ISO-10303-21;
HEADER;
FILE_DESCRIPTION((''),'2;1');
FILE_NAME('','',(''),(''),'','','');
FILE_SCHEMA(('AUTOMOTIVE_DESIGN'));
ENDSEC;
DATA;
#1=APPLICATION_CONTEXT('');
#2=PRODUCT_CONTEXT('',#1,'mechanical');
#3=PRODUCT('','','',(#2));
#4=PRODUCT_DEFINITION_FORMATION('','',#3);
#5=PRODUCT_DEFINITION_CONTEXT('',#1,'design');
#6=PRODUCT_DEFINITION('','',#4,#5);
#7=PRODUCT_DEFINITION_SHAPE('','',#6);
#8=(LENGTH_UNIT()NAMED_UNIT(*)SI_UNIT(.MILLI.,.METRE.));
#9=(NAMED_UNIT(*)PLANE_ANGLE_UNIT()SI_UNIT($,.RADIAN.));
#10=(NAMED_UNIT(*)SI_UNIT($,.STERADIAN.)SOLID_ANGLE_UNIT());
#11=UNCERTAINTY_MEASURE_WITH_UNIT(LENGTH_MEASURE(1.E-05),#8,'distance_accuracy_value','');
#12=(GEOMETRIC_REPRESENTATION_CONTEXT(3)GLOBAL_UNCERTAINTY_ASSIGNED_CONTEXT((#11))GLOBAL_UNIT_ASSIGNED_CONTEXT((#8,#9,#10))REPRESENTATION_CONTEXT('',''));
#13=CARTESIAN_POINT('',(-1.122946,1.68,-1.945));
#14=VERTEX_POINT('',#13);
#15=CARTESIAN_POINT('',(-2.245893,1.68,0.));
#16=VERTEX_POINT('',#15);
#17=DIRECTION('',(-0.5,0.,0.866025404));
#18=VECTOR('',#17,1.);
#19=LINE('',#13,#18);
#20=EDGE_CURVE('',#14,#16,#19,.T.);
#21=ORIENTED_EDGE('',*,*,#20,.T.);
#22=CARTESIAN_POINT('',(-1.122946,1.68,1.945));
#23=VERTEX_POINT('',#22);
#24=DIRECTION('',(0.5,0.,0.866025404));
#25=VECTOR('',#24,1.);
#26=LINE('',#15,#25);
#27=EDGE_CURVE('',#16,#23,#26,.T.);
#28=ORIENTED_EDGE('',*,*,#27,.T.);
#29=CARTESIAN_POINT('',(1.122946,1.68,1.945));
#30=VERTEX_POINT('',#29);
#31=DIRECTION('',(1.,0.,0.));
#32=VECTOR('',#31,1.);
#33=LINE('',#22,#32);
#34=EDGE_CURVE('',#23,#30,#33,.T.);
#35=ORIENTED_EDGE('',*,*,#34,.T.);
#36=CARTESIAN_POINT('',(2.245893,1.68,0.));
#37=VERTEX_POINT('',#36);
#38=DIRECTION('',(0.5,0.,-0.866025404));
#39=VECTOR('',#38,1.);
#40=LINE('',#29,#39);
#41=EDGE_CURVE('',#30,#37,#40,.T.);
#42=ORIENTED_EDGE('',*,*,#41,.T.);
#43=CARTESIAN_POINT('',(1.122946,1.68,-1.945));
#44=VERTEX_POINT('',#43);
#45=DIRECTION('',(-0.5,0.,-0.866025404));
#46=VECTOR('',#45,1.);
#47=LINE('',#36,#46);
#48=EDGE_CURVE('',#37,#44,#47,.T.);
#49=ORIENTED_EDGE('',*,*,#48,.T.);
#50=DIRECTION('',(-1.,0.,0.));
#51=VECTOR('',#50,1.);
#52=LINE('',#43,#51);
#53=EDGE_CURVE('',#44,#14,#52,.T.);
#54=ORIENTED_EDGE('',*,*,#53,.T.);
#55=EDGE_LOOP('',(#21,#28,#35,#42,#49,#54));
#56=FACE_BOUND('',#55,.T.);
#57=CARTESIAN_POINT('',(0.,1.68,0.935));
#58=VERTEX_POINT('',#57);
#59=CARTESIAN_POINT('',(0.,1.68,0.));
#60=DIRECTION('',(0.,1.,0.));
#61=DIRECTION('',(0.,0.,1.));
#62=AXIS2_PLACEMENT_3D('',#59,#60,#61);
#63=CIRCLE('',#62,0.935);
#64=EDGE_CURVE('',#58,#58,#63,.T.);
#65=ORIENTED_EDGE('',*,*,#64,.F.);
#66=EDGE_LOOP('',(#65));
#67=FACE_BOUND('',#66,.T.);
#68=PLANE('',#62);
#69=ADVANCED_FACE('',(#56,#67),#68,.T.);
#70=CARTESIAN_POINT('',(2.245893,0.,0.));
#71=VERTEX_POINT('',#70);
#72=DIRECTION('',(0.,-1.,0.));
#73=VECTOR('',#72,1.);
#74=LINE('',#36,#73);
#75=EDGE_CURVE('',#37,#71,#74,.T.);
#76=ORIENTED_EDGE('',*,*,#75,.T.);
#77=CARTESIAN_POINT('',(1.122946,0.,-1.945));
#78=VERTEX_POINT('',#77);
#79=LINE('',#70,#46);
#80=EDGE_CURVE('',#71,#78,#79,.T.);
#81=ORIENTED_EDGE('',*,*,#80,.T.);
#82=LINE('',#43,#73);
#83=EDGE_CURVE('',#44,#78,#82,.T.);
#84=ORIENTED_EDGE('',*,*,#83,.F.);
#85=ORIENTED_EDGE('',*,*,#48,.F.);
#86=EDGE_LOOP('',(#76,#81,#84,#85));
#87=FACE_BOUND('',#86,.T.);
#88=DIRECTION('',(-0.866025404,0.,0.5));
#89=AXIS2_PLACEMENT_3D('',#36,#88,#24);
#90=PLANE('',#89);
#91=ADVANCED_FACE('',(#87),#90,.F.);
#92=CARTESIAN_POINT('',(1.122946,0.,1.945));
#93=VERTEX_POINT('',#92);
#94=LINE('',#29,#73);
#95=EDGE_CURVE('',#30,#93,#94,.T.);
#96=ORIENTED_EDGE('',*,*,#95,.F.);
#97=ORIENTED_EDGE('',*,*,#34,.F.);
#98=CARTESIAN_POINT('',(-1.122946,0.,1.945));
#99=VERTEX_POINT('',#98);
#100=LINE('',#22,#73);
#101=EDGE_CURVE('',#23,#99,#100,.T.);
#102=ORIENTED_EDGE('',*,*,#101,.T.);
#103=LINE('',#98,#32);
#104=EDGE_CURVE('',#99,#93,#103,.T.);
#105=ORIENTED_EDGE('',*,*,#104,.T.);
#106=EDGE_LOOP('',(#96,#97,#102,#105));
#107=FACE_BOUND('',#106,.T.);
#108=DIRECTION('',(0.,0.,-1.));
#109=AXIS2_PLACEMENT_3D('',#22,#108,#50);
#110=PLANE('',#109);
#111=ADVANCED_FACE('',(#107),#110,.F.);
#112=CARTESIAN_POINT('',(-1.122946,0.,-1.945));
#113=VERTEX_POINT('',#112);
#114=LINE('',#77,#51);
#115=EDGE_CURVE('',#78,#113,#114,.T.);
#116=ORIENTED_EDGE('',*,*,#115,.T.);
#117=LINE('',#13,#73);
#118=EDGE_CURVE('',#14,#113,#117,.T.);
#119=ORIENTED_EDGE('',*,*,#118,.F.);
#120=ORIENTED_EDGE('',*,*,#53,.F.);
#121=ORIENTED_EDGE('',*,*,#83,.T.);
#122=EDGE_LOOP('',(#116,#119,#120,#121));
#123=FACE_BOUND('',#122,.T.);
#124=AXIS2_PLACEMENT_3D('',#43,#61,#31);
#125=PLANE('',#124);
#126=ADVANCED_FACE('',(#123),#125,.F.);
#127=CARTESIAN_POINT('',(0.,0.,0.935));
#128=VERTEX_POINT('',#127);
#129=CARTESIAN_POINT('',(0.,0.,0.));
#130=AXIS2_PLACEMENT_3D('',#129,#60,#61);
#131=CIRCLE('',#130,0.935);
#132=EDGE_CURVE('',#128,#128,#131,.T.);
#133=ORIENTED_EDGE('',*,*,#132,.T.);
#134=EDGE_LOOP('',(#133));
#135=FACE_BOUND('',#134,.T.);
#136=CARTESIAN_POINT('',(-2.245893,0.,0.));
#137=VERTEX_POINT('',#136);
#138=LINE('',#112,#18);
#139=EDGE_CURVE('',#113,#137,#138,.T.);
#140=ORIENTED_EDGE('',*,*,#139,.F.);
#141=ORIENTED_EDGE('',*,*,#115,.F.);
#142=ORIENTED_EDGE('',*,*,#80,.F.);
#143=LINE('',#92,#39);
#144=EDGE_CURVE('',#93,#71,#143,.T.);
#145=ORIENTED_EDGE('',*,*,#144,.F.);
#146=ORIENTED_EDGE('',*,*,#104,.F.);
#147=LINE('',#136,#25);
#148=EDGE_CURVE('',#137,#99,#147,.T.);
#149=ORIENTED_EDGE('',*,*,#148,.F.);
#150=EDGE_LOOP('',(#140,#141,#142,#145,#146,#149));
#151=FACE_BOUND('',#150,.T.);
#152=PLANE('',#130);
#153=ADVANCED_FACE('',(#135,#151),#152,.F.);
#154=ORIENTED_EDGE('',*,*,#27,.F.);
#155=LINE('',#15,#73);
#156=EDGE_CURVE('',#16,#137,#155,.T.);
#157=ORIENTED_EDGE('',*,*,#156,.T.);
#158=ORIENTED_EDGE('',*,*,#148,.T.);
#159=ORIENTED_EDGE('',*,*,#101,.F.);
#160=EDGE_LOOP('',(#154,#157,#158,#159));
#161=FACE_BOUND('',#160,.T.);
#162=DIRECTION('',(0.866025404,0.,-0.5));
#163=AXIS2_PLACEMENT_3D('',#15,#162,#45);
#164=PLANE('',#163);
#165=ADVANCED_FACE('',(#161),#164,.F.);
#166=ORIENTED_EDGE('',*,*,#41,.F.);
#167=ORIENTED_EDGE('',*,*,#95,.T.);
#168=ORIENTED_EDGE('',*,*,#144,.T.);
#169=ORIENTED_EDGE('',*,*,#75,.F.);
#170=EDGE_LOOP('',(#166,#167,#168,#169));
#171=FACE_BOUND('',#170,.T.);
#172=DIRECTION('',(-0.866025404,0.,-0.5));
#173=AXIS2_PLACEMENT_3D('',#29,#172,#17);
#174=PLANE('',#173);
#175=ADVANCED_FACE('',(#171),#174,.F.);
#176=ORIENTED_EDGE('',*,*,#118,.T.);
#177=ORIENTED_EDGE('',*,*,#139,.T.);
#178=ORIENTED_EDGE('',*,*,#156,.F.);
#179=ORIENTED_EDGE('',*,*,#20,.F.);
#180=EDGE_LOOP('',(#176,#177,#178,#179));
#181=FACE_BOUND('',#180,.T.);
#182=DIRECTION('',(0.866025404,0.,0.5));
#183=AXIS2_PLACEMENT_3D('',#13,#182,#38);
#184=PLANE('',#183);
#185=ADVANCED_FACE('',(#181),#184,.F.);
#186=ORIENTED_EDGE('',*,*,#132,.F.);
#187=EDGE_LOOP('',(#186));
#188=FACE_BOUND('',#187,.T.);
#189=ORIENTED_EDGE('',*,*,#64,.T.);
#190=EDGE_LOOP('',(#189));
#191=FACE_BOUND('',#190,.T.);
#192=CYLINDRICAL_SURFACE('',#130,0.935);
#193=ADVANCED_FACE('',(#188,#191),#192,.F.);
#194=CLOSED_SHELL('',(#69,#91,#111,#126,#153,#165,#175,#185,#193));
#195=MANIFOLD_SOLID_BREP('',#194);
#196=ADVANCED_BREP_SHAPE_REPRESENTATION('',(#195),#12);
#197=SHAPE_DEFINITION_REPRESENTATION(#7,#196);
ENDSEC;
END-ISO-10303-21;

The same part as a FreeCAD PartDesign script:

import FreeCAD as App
import Part
import Sketcher
Q = App.Units.Quantity


def add_polygon(sketch, points):
    """Adds a closed chain of lines whose ends are joined by coincident constraints."""
    first, n = sketch.GeometryCount, len(points)
    for a, b in zip(points, points[1:] + points[:1]):
        sketch.addGeometry(Part.LineSegment(App.Vector(*a, 0), App.Vector(*b, 0)), False)
    for i in range(n):
        sketch.addConstraint(Sketcher.Constraint("Coincident", first + i, 2, first + (i + 1) % n, 1))

doc = App.newDocument("Part")
body = doc.addObject("PartDesign::Body", "Body")

# Sketch on XZ plane
sketch1 = body.newObject("Sketcher::SketchObject", "Sketch")
sketch1.AttachmentSupport = (doc.getObject("XZ_Plane"), [""])
sketch1.MapMode = "FlatFace"
add_polygon(sketch1, [(1.122946, 1.945), (2.245893, 0), (1.122946, -1.945), (-1.122946, -1.945), (-2.245893, 0), (-1.122946, 1.945)])  # lines 0-5
sketch1.addConstraint([
    Sketcher.Constraint("Horizontal", 2),
    Sketcher.Constraint("Horizontal", 5),
    Sketcher.Constraint("Symmetric", 0, 2, 3, 2, -1, 1),
    Sketcher.Constraint("Symmetric", 1, 2, 4, 2, -1, 1),
    Sketcher.Constraint("PointOnObject", 0, 2, -1),
    Sketcher.Constraint("Parallel", 0, 3),
    Sketcher.Constraint("Vertical", 2, 2, 4, 2),
    Sketcher.Constraint("Angle", 0, Q("-60 deg")),
    Sketcher.Constraint("DistanceY", 2, 2, 4, 2, Q("3.89 mm")),
    Sketcher.Constraint("DistanceX", 2, 2, 2, 1, Q("2.245893 mm")),
])
pad1 = body.newObject("PartDesign::Pad", "Pad")
pad1.Profile = sketch1
pad1.Length = 1.68
pad1.Reversed = True

# Sketch on XZ plane
sketch2 = body.newObject("Sketcher::SketchObject", "Sketch001")
sketch2.AttachmentSupport = (doc.getObject("XZ_Plane"), [""])
sketch2.MapMode = "FlatFace"
sketch2.AttachmentOffset = App.Placement(App.Vector(0, 0, -1.68), App.Rotation())
sketch2.addGeometry(Part.Circle(App.Vector(0, 0, 0), App.Vector(0, 0, 1), 0.935), False)
sketch2.addConstraint([
    Sketcher.Constraint("Coincident", 0, 3, -1, 1),
    Sketcher.Constraint("Diameter", 0, Q("1.87 mm")),
])
pocket1 = body.newObject("PartDesign::Pocket", "Pocket")
pocket1.Profile = sketch2
pocket1.Type = "ThroughAll"
pocket1.Reversed = True

doc.recompute()
